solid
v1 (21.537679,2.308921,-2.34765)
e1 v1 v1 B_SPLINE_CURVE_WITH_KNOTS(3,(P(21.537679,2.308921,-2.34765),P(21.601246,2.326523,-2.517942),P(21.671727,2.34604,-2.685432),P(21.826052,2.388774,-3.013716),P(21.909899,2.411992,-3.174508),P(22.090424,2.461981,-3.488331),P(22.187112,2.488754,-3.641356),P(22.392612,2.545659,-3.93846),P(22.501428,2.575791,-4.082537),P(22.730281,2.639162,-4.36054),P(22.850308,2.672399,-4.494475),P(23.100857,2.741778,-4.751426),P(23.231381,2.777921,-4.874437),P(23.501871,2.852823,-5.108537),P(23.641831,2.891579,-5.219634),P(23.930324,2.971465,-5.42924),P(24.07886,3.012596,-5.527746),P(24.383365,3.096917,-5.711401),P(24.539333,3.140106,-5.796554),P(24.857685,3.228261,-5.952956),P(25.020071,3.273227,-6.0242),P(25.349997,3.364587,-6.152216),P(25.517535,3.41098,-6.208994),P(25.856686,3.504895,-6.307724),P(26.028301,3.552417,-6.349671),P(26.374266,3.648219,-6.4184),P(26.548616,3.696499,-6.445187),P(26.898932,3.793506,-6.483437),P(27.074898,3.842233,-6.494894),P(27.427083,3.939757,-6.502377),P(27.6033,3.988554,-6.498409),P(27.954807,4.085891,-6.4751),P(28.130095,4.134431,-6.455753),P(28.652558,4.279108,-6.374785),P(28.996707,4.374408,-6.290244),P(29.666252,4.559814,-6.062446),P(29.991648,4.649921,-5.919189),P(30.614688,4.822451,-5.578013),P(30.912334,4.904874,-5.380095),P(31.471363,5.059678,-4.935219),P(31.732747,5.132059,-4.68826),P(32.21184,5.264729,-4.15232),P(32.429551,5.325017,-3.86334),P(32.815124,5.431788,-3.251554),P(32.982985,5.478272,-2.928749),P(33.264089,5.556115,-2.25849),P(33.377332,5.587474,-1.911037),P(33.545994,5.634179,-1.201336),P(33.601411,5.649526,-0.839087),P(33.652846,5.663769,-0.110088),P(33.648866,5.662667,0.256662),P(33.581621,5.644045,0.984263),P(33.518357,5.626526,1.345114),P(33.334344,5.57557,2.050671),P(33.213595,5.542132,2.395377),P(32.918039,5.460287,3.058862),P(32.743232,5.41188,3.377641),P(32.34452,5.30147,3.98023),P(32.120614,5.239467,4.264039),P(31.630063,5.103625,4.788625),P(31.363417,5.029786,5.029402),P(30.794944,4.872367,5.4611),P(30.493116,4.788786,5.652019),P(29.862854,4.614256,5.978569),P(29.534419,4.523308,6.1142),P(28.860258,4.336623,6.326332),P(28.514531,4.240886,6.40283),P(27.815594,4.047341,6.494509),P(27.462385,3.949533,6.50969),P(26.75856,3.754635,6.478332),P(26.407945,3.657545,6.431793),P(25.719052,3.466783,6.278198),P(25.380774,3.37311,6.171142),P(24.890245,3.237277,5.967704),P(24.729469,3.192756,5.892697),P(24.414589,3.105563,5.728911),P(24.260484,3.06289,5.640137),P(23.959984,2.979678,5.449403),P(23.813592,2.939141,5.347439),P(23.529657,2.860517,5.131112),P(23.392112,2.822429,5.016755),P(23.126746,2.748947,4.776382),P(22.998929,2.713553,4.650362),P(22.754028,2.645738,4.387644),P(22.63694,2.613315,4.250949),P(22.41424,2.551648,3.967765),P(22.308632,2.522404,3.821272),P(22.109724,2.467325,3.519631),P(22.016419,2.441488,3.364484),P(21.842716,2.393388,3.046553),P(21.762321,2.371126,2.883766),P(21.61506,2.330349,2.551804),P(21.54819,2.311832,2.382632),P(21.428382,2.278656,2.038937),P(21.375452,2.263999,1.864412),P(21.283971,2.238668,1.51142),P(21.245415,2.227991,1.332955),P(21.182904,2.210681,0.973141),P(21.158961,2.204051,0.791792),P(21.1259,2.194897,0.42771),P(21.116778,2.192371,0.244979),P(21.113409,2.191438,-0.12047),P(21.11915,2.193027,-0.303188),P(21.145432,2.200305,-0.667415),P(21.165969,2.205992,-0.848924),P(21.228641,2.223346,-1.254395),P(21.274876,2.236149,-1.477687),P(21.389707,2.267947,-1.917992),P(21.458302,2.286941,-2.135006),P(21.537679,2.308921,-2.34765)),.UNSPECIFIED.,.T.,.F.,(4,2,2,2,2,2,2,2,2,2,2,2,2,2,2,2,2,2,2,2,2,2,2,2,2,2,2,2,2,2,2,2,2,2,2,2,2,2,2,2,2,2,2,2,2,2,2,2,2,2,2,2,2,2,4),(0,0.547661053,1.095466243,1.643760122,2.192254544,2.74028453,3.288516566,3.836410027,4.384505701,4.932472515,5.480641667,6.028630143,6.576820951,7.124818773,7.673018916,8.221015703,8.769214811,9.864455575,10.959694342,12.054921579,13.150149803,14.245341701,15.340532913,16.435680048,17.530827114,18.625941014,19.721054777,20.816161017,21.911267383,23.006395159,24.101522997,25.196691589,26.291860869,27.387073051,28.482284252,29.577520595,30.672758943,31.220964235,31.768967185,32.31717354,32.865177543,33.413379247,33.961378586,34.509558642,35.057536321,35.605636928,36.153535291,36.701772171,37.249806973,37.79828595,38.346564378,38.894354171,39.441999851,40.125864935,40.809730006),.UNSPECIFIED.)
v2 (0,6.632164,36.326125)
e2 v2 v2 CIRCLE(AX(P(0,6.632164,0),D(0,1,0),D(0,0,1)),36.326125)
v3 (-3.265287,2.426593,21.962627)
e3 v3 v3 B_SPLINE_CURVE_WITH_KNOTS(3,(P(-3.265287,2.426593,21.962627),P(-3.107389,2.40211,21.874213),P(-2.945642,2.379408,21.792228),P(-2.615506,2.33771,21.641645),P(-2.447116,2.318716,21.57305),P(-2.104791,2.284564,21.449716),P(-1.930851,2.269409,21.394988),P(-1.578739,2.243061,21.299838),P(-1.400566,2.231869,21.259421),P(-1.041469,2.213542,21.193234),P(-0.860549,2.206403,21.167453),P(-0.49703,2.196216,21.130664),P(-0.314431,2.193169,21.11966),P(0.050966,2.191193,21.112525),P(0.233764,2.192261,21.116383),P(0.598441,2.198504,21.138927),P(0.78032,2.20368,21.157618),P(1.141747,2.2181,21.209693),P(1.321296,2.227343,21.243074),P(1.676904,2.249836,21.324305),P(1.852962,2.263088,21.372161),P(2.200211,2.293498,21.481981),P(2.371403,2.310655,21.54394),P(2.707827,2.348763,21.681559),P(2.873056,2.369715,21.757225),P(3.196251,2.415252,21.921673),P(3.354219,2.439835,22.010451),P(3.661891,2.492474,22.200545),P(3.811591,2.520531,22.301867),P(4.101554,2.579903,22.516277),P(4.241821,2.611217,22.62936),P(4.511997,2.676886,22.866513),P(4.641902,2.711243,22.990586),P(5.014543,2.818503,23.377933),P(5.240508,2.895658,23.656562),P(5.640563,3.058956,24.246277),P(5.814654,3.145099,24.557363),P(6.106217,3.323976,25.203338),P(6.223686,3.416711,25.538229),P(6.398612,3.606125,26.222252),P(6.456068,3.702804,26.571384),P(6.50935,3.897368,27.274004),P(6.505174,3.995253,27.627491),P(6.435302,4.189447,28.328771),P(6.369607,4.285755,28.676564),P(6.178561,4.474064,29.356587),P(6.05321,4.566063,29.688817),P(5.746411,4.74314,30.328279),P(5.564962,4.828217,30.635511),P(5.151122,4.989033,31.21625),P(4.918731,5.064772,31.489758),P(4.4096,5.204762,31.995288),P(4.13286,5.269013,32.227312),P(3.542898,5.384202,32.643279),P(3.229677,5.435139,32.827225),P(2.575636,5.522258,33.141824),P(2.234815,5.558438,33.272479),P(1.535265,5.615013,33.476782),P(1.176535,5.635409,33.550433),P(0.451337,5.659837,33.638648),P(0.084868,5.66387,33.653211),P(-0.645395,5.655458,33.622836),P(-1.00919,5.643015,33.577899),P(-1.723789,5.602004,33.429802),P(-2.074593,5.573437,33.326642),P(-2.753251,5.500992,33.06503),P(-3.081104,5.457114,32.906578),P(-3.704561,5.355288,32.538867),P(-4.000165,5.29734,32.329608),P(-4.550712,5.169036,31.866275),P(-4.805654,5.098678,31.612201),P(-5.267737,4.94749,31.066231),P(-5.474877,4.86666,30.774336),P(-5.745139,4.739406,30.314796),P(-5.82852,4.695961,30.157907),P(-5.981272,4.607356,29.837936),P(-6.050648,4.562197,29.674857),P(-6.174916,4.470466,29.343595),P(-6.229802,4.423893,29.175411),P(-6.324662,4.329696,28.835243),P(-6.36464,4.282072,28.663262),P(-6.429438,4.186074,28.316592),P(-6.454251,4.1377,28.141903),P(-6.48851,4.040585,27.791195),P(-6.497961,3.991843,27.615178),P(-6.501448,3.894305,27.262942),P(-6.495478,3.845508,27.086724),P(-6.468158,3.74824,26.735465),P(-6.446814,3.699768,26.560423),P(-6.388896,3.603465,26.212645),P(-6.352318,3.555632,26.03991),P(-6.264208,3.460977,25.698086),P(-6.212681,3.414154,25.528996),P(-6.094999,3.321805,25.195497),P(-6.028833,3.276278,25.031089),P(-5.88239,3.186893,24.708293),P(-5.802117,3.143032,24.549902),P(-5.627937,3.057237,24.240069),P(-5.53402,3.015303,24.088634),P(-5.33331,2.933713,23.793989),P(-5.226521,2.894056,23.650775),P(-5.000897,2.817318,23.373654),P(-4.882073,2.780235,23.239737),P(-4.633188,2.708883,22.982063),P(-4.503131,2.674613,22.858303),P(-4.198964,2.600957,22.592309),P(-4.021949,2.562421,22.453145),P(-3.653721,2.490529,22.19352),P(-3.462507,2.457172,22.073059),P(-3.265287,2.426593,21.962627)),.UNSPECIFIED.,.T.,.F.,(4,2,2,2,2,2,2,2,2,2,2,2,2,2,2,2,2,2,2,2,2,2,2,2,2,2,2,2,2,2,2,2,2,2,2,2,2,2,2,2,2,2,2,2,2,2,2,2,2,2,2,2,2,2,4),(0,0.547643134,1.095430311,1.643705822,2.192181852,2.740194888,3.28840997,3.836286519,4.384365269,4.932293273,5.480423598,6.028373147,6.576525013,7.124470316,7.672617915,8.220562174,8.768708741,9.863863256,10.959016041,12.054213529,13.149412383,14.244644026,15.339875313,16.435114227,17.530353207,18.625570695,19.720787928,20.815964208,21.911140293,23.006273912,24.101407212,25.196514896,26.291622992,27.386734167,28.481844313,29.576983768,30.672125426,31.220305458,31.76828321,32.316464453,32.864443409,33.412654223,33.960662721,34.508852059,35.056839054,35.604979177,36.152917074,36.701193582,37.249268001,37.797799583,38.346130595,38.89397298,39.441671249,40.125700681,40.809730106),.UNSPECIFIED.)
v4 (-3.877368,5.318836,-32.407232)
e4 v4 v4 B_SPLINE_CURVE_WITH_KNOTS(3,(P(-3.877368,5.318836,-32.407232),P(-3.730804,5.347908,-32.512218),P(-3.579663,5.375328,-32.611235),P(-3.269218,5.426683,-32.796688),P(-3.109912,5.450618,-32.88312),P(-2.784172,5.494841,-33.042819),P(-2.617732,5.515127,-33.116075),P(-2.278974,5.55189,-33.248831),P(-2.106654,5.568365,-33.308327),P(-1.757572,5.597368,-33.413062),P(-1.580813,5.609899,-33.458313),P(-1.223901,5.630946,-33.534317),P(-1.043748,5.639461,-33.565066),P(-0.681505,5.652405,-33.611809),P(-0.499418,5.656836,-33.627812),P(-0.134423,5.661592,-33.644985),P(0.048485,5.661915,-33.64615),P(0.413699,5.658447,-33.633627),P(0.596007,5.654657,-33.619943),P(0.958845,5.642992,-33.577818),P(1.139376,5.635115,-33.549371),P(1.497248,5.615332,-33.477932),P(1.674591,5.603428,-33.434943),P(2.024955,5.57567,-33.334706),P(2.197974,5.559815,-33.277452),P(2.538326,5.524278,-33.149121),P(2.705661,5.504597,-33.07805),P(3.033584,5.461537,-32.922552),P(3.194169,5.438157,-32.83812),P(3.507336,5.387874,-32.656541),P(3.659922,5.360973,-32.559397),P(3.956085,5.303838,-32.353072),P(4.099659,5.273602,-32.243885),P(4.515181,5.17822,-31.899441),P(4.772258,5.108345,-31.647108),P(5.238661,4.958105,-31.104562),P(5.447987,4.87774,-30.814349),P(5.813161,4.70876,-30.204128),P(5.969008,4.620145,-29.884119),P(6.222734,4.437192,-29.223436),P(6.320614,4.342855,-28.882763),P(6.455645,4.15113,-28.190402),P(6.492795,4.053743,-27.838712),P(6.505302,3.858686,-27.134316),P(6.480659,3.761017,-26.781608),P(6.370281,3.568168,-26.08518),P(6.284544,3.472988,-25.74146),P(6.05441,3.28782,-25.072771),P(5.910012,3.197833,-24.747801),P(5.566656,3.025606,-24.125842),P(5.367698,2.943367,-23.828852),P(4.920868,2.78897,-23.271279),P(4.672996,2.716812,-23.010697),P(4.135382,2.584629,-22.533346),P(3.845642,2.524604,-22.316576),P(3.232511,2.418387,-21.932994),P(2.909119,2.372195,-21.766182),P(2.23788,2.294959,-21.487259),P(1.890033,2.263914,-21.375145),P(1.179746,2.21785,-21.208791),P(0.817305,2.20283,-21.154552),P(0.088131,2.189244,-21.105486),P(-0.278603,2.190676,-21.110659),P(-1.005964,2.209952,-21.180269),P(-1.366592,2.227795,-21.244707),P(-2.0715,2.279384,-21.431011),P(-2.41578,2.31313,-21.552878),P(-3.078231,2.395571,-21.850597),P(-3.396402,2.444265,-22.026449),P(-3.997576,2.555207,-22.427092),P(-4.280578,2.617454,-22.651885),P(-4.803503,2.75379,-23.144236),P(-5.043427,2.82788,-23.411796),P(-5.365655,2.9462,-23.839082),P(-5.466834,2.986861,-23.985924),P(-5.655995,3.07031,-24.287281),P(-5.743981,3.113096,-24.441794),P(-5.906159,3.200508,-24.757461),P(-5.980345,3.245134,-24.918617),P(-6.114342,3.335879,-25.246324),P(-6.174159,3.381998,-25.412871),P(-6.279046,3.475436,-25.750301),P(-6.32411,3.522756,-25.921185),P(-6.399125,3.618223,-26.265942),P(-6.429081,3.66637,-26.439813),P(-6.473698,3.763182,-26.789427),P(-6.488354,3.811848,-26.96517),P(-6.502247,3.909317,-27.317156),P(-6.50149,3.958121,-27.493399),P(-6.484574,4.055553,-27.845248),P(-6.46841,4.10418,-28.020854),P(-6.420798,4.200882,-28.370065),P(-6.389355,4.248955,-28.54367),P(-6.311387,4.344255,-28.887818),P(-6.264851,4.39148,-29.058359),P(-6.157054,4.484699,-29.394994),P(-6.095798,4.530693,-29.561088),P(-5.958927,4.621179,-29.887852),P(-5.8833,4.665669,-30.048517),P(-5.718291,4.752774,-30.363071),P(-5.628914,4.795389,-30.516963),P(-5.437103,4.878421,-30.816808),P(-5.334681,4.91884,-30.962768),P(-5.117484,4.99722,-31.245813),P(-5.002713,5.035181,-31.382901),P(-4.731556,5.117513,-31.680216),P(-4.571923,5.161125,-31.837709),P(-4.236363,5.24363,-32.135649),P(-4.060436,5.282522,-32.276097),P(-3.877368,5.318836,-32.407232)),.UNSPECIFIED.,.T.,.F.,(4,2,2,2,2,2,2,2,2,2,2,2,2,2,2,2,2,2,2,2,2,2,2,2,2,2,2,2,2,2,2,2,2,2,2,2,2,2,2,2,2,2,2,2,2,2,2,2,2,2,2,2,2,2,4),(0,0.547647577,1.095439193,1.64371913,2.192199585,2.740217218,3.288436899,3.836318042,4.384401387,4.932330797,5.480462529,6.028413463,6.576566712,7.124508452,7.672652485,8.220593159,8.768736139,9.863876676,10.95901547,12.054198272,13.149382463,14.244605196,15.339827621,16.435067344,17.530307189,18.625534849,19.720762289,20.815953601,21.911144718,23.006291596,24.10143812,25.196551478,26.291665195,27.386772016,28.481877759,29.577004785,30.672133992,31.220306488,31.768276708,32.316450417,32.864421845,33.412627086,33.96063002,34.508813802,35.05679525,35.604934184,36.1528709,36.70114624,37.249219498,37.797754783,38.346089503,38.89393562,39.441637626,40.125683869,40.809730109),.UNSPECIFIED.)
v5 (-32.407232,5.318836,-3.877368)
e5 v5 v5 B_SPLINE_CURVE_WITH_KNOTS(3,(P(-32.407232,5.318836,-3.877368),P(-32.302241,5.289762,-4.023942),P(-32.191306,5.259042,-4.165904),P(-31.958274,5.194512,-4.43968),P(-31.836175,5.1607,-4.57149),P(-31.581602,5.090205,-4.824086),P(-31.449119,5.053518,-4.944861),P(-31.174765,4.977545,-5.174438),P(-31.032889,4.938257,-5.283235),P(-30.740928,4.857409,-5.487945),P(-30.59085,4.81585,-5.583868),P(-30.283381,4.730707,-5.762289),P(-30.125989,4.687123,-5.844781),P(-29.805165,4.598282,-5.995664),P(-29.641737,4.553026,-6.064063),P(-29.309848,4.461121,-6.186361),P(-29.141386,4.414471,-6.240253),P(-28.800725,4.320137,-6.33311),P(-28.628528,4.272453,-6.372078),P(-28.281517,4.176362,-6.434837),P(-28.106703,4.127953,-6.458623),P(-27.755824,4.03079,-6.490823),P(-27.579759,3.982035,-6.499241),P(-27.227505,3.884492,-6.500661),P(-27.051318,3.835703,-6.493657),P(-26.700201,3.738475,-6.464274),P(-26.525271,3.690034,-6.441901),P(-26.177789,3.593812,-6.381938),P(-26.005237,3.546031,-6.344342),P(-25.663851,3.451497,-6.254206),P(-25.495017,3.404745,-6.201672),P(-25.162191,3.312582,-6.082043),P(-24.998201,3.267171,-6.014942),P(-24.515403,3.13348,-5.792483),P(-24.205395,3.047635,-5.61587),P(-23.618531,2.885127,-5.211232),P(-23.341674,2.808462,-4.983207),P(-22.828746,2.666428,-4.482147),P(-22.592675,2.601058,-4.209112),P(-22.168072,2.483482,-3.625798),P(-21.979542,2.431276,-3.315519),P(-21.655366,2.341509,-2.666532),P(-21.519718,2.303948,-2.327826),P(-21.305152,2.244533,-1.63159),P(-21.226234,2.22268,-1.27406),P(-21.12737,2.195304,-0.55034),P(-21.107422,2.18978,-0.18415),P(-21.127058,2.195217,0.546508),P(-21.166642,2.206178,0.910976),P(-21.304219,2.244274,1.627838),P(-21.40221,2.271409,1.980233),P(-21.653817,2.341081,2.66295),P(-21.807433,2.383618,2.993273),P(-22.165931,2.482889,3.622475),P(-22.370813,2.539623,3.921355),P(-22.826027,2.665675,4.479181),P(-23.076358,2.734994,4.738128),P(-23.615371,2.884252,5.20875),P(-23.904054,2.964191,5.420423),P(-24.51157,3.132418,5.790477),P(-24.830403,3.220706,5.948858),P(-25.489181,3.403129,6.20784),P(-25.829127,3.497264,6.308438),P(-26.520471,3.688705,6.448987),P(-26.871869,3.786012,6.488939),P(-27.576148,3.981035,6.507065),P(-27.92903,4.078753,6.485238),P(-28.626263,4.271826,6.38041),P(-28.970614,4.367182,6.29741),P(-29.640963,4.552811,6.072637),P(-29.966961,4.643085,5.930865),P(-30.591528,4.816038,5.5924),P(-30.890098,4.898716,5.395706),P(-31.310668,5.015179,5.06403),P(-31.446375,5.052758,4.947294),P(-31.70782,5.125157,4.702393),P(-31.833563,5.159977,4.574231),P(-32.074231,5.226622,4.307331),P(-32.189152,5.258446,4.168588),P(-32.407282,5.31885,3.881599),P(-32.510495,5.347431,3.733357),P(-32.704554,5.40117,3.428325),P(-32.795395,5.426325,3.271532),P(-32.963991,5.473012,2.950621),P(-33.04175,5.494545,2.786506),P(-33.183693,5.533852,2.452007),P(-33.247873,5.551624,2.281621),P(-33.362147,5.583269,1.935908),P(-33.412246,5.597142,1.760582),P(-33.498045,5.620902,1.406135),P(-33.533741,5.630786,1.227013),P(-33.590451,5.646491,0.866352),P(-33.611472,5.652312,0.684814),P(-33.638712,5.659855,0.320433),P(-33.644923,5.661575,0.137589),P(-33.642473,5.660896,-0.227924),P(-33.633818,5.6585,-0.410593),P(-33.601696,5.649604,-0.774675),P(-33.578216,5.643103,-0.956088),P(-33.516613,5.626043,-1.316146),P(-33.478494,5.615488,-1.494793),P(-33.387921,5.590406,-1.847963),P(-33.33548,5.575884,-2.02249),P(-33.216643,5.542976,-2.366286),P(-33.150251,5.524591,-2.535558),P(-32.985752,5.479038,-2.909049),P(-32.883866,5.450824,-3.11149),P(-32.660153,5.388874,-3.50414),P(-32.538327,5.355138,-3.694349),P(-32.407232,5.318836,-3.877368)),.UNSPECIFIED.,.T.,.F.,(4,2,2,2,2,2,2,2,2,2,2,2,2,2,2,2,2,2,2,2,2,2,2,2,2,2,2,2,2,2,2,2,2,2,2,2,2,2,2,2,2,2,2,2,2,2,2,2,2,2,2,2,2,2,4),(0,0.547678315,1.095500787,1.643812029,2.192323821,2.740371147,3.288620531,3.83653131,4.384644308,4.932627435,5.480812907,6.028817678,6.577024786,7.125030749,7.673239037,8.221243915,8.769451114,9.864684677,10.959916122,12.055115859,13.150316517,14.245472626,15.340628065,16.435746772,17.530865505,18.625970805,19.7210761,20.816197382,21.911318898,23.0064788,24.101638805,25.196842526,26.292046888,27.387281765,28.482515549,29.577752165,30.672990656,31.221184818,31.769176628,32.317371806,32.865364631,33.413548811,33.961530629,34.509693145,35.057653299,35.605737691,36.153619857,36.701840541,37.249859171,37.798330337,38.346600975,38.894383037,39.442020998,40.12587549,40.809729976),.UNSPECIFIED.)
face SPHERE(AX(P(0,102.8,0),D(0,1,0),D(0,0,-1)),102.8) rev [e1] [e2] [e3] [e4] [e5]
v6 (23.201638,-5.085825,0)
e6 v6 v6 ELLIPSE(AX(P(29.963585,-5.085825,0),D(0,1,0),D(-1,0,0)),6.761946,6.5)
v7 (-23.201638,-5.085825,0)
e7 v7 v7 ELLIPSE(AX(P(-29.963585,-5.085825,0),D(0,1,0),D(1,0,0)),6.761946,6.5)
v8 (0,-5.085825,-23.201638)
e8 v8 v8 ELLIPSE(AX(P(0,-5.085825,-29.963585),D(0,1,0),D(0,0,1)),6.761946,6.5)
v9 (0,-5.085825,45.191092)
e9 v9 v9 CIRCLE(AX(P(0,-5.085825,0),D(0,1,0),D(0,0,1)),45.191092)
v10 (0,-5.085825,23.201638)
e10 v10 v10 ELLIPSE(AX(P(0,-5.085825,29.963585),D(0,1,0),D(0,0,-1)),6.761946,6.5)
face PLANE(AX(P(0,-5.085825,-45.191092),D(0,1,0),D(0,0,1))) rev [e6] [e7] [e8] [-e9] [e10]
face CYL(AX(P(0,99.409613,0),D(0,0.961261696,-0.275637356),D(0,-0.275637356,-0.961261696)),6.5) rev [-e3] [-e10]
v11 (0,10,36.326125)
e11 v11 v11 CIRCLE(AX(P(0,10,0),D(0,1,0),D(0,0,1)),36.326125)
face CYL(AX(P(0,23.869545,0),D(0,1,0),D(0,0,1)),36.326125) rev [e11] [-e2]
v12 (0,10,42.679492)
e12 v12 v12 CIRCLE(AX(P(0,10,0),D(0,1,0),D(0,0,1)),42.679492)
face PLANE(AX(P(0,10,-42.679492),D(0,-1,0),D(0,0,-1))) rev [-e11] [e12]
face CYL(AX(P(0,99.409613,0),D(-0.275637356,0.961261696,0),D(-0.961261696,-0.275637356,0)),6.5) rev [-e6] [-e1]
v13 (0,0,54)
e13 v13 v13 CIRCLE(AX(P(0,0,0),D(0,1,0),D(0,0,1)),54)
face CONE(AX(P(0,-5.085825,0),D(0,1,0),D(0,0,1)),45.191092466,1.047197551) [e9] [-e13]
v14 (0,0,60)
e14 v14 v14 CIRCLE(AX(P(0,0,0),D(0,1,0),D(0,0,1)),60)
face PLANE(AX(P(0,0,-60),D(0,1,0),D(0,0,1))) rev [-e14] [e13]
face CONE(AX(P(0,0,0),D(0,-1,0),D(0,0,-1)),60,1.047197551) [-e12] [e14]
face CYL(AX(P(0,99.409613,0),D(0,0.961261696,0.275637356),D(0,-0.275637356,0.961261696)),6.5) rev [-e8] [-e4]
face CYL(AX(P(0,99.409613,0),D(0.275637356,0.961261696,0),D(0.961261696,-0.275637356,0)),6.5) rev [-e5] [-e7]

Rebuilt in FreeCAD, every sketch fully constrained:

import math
import FreeCAD as App
import Part
import Sketcher
from FreeCAD import Vector
Q = App.Units.Quantity


def add_polygon(sketch, points):
    """Adds a closed chain of lines whose ends are joined by coincident constraints."""
    first, n = sketch.GeometryCount, len(points)
    for a, b in zip(points, points[1:] + points[:1]):
        sketch.addGeometry(Part.LineSegment(App.Vector(*a, 0), App.Vector(*b, 0)), False)
    for i in range(n):
        sketch.addConstraint(Sketcher.Constraint("Coincident", first + i, 2, first + (i + 1) % n, 1))

doc = App.newDocument("Part")
body = doc.addObject("PartDesign::Body", "Body")

# Sketch on YZ plane
sketch1 = body.newObject("Sketcher::SketchObject", "Sketch")
sketch1.AttachmentSupport = (doc.getObject("YZ_Plane"), [""])
sketch1.MapMode = "FlatFace"
sketch1.addGeometry([
    Part.LineSegment(Vector(0, -60, 0), Vector(10, -42.7, 0)),  # 0
    Part.LineSegment(Vector(10, -42.7, 0), Vector(10, -36.3, 0)),  # 1
    Part.LineSegment(Vector(10, -36.3, 0), Vector(6.6, -36.3, 0)),  # 2
    Part.ArcOfCircle(Part.Circle(Vector(102.8, 0, 0), Vector(0, 0, 1), 102.8), math.radians(180), math.radians(201)),  # 3
    Part.LineSegment(Vector(0, 0, 0), Vector(-5.1, 0, 0)),  # 4
    Part.LineSegment(Vector(-5.1, 0, 0), Vector(-5.1, -45.2, 0)),  # 5
    Part.LineSegment(Vector(-5.1, -45.2, 0), Vector(0, -54, 0)),  # 6
    Part.LineSegment(Vector(0, -54, 0), Vector(0, -60, 0)),  # 7
], False)
sketch1.addConstraint([
    Sketcher.Constraint("Coincident", 0, 2, 1, 1),
    Sketcher.Constraint("Coincident", 1, 2, 2, 1),
    Sketcher.Constraint("Coincident", 2, 2, 3, 2),
    Sketcher.Constraint("Coincident", 3, 1, 4, 1),
    Sketcher.Constraint("Coincident", 4, 2, 5, 1),
    Sketcher.Constraint("Coincident", 5, 2, 6, 1),
    Sketcher.Constraint("Coincident", 6, 2, 7, 1),
    Sketcher.Constraint("Coincident", 7, 2, 0, 1),
    Sketcher.Constraint("Vertical", 1),
    Sketcher.Constraint("Horizontal", 2),
    Sketcher.Constraint("Horizontal", 4),
    Sketcher.Constraint("Vertical", 5),
    Sketcher.Constraint("Vertical", 7),
    Sketcher.Constraint("Coincident", 3, 1, -1, 1),
    Sketcher.Constraint("PointOnObject", 3, 3, -1),
    Sketcher.Constraint("PointOnObject", 6, 2, -2),
    Sketcher.Constraint("Radius", 3, Q("102.8 mm")),
    Sketcher.Constraint("DistanceY", 7, 2, 7, 1, Q("6 mm")),
    Sketcher.Constraint("Angle", 0, Q("60 deg")),
    Sketcher.Constraint("Angle", 6, Q("-60 deg")),
    Sketcher.Constraint("Distance", 0, Q("20 mm")),
    Sketcher.Constraint("DistanceY", 6, 2, -1, 1, Q("54 mm")),
    Sketcher.Constraint("DistanceY", 5, 2, 0, 2, Q("2.511601 mm")),
    Sketcher.Constraint("DistanceX", 2, 2, 2, 1, Q("3.367836 mm")),
])
revolution = body.newObject("PartDesign::Revolution", "Revolution")
revolution.Profile = sketch1
revolution.ReferenceAxis = (sketch1, ["H_Axis"])
revolution.Angle = 360

# Sketch on XY plane
sketch2 = body.newObject("Sketcher::SketchObject", "Sketch001")
sketch2.AttachmentSupport = (doc.getObject("XY_Plane"), [""])
sketch2.MapMode = "FlatFace"
add_polygon(sketch2, [(29, 21), (23, 19), (33, -17), (40, -15)])  # lines 0-3
sketch2.addGeometry(Part.LineSegment(Vector(23, 19, 0), Vector(33, -17, 0)), True)  # axis
sketch2.addConstraint([
    Sketcher.Constraint("Coincident", 4, 1, 0, 2),
    Sketcher.Constraint("Coincident", 4, 2, 1, 2),
    Sketcher.Constraint("Perpendicular", 0, 1),
    Sketcher.Constraint("Perpendicular", 1, 2),
    Sketcher.Constraint("Perpendicular", 2, 3),
    Sketcher.Constraint("Angle", 0, Q("-164 deg")),
    Sketcher.Constraint("Distance", 0, Q("6.5 mm")),
    Sketcher.Constraint("DistanceY", 1, 2, 3, 2, Q("37.360802 mm")),
    Sketcher.Constraint("DistanceX", -1, 1, 0, 2, Q("23.11659 mm")),
    Sketcher.Constraint("DistanceY", 2, 2, -1, 1, Q("14.985032 mm")),
])
groove = body.newObject("PartDesign::Groove", "Groove")
groove.Profile = sketch2
groove.ReferenceAxis = (sketch2, ["Axis0"])
groove.Angle = 360
doc.recompute()

polarpattern = body.newObject("PartDesign::PolarPattern", "PolarPattern")
polarpattern.Originals = [groove]
polarpattern.Axis = (doc.getObject("Y_Axis"), [""])
polarpattern.Angle = 360
polarpattern.Occurrences = 4
body.Tip = polarpattern

doc.recompute()
